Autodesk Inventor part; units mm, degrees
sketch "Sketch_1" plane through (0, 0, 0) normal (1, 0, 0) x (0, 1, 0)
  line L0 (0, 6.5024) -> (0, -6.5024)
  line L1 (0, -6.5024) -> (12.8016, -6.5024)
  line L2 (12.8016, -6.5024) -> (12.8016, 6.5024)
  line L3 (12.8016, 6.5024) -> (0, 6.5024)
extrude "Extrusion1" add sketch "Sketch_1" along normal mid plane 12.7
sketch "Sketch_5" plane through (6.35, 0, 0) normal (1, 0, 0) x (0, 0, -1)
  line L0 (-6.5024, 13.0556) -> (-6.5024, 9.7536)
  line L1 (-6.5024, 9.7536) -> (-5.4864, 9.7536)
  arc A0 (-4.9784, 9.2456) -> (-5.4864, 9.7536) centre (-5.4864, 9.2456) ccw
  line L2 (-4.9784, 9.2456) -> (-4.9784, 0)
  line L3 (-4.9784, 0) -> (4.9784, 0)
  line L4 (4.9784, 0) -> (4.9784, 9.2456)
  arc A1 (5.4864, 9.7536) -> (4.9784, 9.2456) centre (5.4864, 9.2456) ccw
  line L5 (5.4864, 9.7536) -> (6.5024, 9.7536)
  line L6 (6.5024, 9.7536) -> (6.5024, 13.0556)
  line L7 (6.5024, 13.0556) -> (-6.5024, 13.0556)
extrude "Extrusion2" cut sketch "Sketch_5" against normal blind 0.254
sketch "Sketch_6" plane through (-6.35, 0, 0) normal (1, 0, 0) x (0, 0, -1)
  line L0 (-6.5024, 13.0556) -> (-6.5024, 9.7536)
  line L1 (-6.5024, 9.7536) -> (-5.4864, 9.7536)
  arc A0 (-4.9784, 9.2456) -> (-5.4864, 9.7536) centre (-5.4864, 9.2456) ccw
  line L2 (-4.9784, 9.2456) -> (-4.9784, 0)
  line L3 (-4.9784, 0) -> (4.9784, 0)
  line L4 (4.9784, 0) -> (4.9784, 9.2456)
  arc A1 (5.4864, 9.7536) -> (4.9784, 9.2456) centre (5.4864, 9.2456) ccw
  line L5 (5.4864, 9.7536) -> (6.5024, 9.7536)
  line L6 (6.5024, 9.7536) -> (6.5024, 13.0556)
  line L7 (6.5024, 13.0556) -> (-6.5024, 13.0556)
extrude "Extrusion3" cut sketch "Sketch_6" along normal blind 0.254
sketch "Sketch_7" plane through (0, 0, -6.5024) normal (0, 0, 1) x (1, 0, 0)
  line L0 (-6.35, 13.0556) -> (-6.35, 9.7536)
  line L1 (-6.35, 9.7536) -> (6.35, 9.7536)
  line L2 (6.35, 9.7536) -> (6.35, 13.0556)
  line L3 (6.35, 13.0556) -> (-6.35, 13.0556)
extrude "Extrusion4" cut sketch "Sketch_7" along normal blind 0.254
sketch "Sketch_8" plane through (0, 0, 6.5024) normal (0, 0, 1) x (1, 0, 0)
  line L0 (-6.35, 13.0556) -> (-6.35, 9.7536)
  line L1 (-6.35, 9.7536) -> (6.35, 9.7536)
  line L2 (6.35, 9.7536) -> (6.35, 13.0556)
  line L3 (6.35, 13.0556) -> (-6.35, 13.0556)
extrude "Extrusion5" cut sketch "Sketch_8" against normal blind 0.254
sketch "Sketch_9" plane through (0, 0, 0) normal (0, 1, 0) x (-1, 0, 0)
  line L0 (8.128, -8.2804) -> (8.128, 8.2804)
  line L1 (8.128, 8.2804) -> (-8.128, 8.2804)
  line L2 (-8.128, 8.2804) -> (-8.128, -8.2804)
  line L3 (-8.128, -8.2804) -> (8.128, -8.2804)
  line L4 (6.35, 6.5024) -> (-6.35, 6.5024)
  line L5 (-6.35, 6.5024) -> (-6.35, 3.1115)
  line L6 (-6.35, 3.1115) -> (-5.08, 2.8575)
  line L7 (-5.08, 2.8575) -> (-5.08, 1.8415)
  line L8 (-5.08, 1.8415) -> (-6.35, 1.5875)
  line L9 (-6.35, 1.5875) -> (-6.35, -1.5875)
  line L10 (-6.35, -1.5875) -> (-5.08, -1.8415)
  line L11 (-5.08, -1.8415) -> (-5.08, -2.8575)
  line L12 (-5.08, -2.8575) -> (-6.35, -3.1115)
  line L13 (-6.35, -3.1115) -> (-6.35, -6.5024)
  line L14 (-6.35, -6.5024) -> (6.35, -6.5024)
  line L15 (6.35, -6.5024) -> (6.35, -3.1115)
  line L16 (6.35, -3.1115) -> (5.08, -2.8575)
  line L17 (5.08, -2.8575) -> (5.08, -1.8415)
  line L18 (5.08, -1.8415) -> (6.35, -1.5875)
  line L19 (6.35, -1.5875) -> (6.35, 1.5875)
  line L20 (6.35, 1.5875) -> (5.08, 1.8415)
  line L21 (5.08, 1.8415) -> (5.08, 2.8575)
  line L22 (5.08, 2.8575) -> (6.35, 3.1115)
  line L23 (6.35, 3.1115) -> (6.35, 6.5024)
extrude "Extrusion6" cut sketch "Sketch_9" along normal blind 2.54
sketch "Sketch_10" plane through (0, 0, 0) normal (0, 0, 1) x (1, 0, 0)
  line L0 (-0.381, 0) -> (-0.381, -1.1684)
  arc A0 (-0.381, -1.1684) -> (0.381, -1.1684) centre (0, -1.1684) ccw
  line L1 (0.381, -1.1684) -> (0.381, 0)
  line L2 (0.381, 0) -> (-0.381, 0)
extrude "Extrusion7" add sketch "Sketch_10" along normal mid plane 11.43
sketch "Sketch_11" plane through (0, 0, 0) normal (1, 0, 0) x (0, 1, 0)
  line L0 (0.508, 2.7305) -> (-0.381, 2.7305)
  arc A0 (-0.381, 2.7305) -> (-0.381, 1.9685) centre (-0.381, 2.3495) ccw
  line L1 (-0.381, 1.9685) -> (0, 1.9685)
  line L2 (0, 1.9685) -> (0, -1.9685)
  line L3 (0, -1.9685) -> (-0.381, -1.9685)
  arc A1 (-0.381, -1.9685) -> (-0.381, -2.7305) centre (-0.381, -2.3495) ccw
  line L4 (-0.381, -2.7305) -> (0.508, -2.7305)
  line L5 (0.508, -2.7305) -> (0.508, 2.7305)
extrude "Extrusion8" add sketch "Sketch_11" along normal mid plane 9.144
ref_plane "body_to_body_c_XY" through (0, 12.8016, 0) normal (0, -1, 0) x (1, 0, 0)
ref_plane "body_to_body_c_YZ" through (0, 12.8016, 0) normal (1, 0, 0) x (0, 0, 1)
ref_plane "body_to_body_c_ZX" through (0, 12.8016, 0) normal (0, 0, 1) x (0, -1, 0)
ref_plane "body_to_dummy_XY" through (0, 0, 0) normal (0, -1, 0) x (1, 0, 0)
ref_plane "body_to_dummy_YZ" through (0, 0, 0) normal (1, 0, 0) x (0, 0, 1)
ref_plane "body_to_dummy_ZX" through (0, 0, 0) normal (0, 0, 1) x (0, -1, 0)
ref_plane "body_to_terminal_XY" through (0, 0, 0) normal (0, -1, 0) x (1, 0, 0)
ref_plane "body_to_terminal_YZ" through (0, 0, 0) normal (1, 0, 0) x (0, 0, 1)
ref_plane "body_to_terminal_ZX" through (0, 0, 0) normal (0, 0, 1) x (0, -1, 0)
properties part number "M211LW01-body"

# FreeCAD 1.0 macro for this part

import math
import FreeCAD as App
import Part
import Sketcher

V = App.Vector
Q = App.Units.Quantity


def add_polygon(sketch, points):
    """Adds a closed chain of lines whose ends are joined by coincident constraints."""
    first, n = sketch.GeometryCount, len(points)
    for a, b in zip(points, points[1:] + points[:1]):
        sketch.addGeometry(Part.LineSegment(App.Vector(*a, 0), App.Vector(*b, 0)), False)
    for i in range(n):
        sketch.addConstraint(Sketcher.Constraint("Coincident", first + i, 2, first + (i + 1) % n, 1))

doc = App.newDocument("Part")
params = doc.addObject("Spreadsheet::Sheet", "Params")
for row, (alias, value) in enumerate([
    ("sketch1_width", "0.504 in"),
    ("sketch1_height", "0.512 in"),
    ("pad1_length", "0.5 in"),
    ("sketch2_radius", "0.02 in"),
    ("sketch2_width", "0.13 in"),
    ("sketch2_height", "0.04 in"),
    ("sketch2_width2", "0.364 in"),
    ("sketch2_height2", "0.512 in"),
    ("pocket1_length", "0.01 in"),
    ("sketch3_radius", "0.02 in"),
    ("sketch3_width", "0.13 in"),
    ("sketch3_height", "0.04 in"),
    ("sketch3_width2", "0.364 in"),
    ("sketch3_height2", "0.512 in"),
    ("pocket2_length", "0.01 in"),
    ("sketch4_width", "0.5 in"),
    ("sketch4_height", "0.13 in"),
    ("pocket3_length", "0.01 in"),
    ("sketch5_width", "0.5 in"),
    ("sketch5_height", "0.13 in"),
    ("pocket4_length", "0.01 in"),
    ("sketch6_width", "0.5 in"),
    ("sketch6_width2", "0.64 in"),
    ("sketch6_height", "0.04 in"),
    ("sketch6_height2", "0.652 in"),
    ("sketch6_height3", "0.125 in"),
    ("pocket5_length", "0.1 in"),
    ("sketch7_radius", "0.015 in"),
    ("sketch7_height", "0.046 in"),
    ("pad2_length", "0.45 in"),
    ("sketch8_radius", "0.015 in"),
    ("sketch8_width", "0.035 in"),
    ("sketch8_width2", "0.015 in"),
    ("pad3_length", "0.36 in"),
], start=1):
    params.set(f"A{row}", alias)
    params.set(f"B{row}", "=" + value)
    params.setAlias(f"B{row}", alias)

body = doc.addObject("PartDesign::Body", "Body")

sketch1 = doc.addObject("Sketcher::SketchObject", "Sketch")
body.addObject(sketch1)
sketch1.AttachmentSupport = (doc.YZ_Plane, [""])
sketch1.MapMode = "FlatFace"
add_polygon(sketch1, [(13, 7), (0, 7), (0, -7), (13, -7)])
sketch1.addConstraint([
    Sketcher.Constraint("Horizontal", 0),
    Sketcher.Constraint("Vertical", 1),
    Sketcher.Constraint("Horizontal", 2),
    Sketcher.Constraint("Vertical", 3),
    Sketcher.Constraint("Symmetric", 0, 2, 1, 2, -1, 1),
    Sketcher.Constraint("DistanceX", 0, 2, 0, 1, Q("0.504 in")),
    Sketcher.Constraint("DistanceY", 1, 2, 1, 1, Q("0.512 in")),
])
sketch1.setExpression("Constraints[9]", "Params.sketch1_width")
sketch1.setExpression("Constraints[10]", "Params.sketch1_height")
pad1 = doc.addObject("PartDesign::Pad", "Pad")
body.addObject(pad1)
pad1.Profile = sketch1
pad1.setExpression("Length", "Params.pad1_length")
pad1.Midplane = True

sketch2 = doc.addObject("Sketcher::SketchObject", "Sketch001")
body.addObject(sketch2)
sketch2.AttachmentSupport = (doc.YZ_Plane, [""])
sketch2.MapMode = "FlatFace"
sketch2.AttachmentOffset = App.Placement(V(0, 0, 0.25 * 25.4), App.Rotation())
sketch2.addGeometry([
    Part.LineSegment(V(13.1, -6.5, 0), V(13.1, 6.5, 0)),
    Part.LineSegment(V(13.1, 6.5, 0), V(9.8, 6.5, 0)),
    Part.LineSegment(V(9.8, 6.5, 0), V(9.8, 5.5, 0)),
    Part.ArcOfCircle(Part.Circle(V(9.2, 5.5, 0), V(0, 0, 1), 0.5), math.radians(-90), math.radians(0)),
    Part.LineSegment(V(9.2, 5, 0), V(0, 5, 0)),
    Part.LineSegment(V(0, 5, 0), V(0, -5, 0)),
    Part.LineSegment(V(0, -5, 0), V(9.2, -5, 0)),
    Part.ArcOfCircle(Part.Circle(V(9.2, -5.5, 0), V(0, 0, 1), 0.5), math.radians(0), math.radians(90)),
    Part.LineSegment(V(9.8, -5.5, 0), V(9.8, -6.5, 0)),
    Part.LineSegment(V(9.8, -6.5, 0), V(13.1, -6.5, 0)),
], False)
sketch2.addConstraint([
    Sketcher.Constraint("Coincident", 0, 2, 1, 1),
    Sketcher.Constraint("Coincident", 1, 2, 2, 1),
    Sketcher.Constraint("Tangent", 2, 2, 3, 2),
    Sketcher.Constraint("Tangent", 3, 1, 4, 1),
    Sketcher.Constraint("Coincident", 4, 2, 5, 1),
    Sketcher.Constraint("Coincident", 5, 2, 6, 1),
    Sketcher.Constraint("Tangent", 6, 2, 7, 2),
    Sketcher.Constraint("Tangent", 7, 1, 8, 1),
    Sketcher.Constraint("Coincident", 8, 2, 9, 1),
    Sketcher.Constraint("Coincident", 9, 2, 0, 1),
    Sketcher.Constraint("Vertical", 0),
    Sketcher.Constraint("Horizontal", 1),
    Sketcher.Constraint("Vertical", 2),
    Sketcher.Constraint("Horizontal", 4),
    Sketcher.Constraint("Vertical", 5),
    Sketcher.Constraint("Horizontal", 6),
    Sketcher.Constraint("Vertical", 8),
    Sketcher.Constraint("Horizontal", 9),
    Sketcher.Constraint("Equal", 3, 7),
    Sketcher.Constraint("Symmetric", 4, 2, 5, 2, -1, 1),
    Sketcher.Constraint("Symmetric", 1, 2, 8, 2, -1),
    Sketcher.Constraint("Radius", 3, Q("0.02 in")),
    Sketcher.Constraint("DistanceX", 1, 2, 1, 1, Q("0.13 in")),
    Sketcher.Constraint("DistanceY", 2, 2, 2, 1, Q("0.04 in")),
    Sketcher.Constraint("DistanceX", 4, 2, 4, 1, Q("0.364 in")),
    Sketcher.Constraint("DistanceY", 0, 1, 0, 2, Q("0.512 in")),
])
sketch2.setExpression("Constraints[21]", "Params.sketch2_radius")
sketch2.setExpression("Constraints[22]", "Params.sketch2_width")
sketch2.setExpression("Constraints[23]", "Params.sketch2_height")
sketch2.setExpression("Constraints[24]", "Params.sketch2_width2")
sketch2.setExpression("Constraints[25]", "Params.sketch2_height2")
pocket1 = doc.addObject("PartDesign::Pocket", "Pocket")
body.addObject(pocket1)
pocket1.Profile = sketch2
pocket1.setExpression("Length", "Params.pocket1_length")

sketch3 = doc.addObject("Sketcher::SketchObject", "Sketch002")
body.addObject(sketch3)
sketch3.AttachmentSupport = (doc.YZ_Plane, [""])
sketch3.MapMode = "FlatFace"
sketch3.AttachmentOffset = App.Placement(V(0, 0, -0.25 * 25.4), App.Rotation())
sketch3.addGeometry([
    Part.LineSegment(V(13.1, -6.5, 0), V(13.1, 6.5, 0)),
    Part.LineSegment(V(13.1, 6.5, 0), V(9.8, 6.5, 0)),
    Part.LineSegment(V(9.8, 6.5, 0), V(9.8, 5.5, 0)),
    Part.ArcOfCircle(Part.Circle(V(9.2, 5.5, 0), V(0, 0, 1), 0.5), math.radians(-90), math.radians(0)),
    Part.LineSegment(V(9.2, 5, 0), V(0, 5, 0)),
    Part.LineSegment(V(0, 5, 0), V(0, -5, 0)),
    Part.LineSegment(V(0, -5, 0), V(9.2, -5, 0)),
    Part.ArcOfCircle(Part.Circle(V(9.2, -5.5, 0), V(0, 0, 1), 0.5), math.radians(0), math.radians(90)),
    Part.LineSegment(V(9.8, -5.5, 0), V(9.8, -6.5, 0)),
    Part.LineSegment(V(9.8, -6.5, 0), V(13.1, -6.5, 0)),
], False)
sketch3.addConstraint([
    Sketcher.Constraint("Coincident", 0, 2, 1, 1),
    Sketcher.Constraint("Coincident", 1, 2, 2, 1),
    Sketcher.Constraint("Tangent", 2, 2, 3, 2),
    Sketcher.Constraint("Tangent", 3, 1, 4, 1),
    Sketcher.Constraint("Coincident", 4, 2, 5, 1),
    Sketcher.Constraint("Coincident", 5, 2, 6, 1),
    Sketcher.Constraint("Tangent", 6, 2, 7, 2),
    Sketcher.Constraint("Tangent", 7, 1, 8, 1),
    Sketcher.Constraint("Coincident", 8, 2, 9, 1),
    Sketcher.Constraint("Coincident", 9, 2, 0, 1),
    Sketcher.Constraint("Vertical", 0),
    Sketcher.Constraint("Horizontal", 1),
    Sketcher.Constraint("Vertical", 2),
    Sketcher.Constraint("Horizontal", 4),
    Sketcher.Constraint("Vertical", 5),
    Sketcher.Constraint("Horizontal", 6),
    Sketcher.Constraint("Vertical", 8),
    Sketcher.Constraint("Horizontal", 9),
    Sketcher.Constraint("Equal", 3, 7),
    Sketcher.Constraint("Symmetric", 4, 2, 5, 2, -1, 1),
    Sketcher.Constraint("Symmetric", 1, 2, 8, 2, -1),
    Sketcher.Constraint("Radius", 3, Q("0.02 in")),
    Sketcher.Constraint("DistanceX", 1, 2, 1, 1, Q("0.13 in")),
    Sketcher.Constraint("DistanceY", 2, 2, 2, 1, Q("0.04 in")),
    Sketcher.Constraint("DistanceX", 4, 2, 4, 1, Q("0.364 in")),
    Sketcher.Constraint("DistanceY", 0, 1, 0, 2, Q("0.512 in")),
])
sketch3.setExpression("Constraints[21]", "Params.sketch3_radius")
sketch3.setExpression("Constraints[22]", "Params.sketch3_width")
sketch3.setExpression("Constraints[23]", "Params.sketch3_height")
sketch3.setExpression("Constraints[24]", "Params.sketch3_width2")
sketch3.setExpression("Constraints[25]", "Params.sketch3_height2")
pocket2 = doc.addObject("PartDesign::Pocket", "Pocket001")
body.addObject(pocket2)
pocket2.Profile = sketch3
pocket2.setExpression("Length", "Params.pocket2_length")
pocket2.Reversed = True

sketch4 = doc.addObject("Sketcher::SketchObject", "Sketch003")
body.addObject(sketch4)
sketch4.AttachmentSupport = (doc.XY_Plane, [""])
sketch4.MapMode = "FlatFace"
sketch4.AttachmentOffset = App.Placement(V(0, 0, -0.256 * 25.4), App.Rotation())
add_polygon(sketch4, [(6.3, 13.1), (-6.3, 13.1), (-6.3, 9.8), (6.3, 9.8)])
sketch4.addConstraint([
    Sketcher.Constraint("Horizontal", 0),
    Sketcher.Constraint("Vertical", 1),
    Sketcher.Constraint("Horizontal", 2),
    Sketcher.Constraint("Vertical", 3),
    Sketcher.Constraint("DistanceX", 0, 2, 0, 1, Q("0.5 in")),
    Sketcher.Constraint("DistanceY", 1, 2, 1, 1, Q("0.13 in")),
    Sketcher.Constraint("DistanceX", 0, 2, -1, 1, Q("0.25 in")),
    Sketcher.Constraint("DistanceY", -1, 1, 0, 2, Q("0.514 in")),
])
sketch4.setExpression("Constraints[8]", "Params.sketch4_width")
sketch4.setExpression("Constraints[9]", "Params.sketch4_height")
pocket3 = doc.addObject("PartDesign::Pocket", "Pocket002")
body.addObject(pocket3)
pocket3.Profile = sketch4
pocket3.setExpression("Length", "Params.pocket3_length")
pocket3.Reversed = True

sketch5 = doc.addObject("Sketcher::SketchObject", "Sketch004")
body.addObject(sketch5)
sketch5.AttachmentSupport = (doc.XY_Plane, [""])
sketch5.MapMode = "FlatFace"
sketch5.AttachmentOffset = App.Placement(V(0, 0, 0.256 * 25.4), App.Rotation())
add_polygon(sketch5, [(6.3, 13.1), (-6.3, 13.1), (-6.3, 9.8), (6.3, 9.8)])
sketch5.addConstraint([
    Sketcher.Constraint("Horizontal", 0),
    Sketcher.Constraint("Vertical", 1),
    Sketcher.Constraint("Horizontal", 2),
    Sketcher.Constraint("Vertical", 3),
    Sketcher.Constraint("DistanceX", 0, 2, 0, 1, Q("0.5 in")),
    Sketcher.Constraint("DistanceY", 1, 2, 1, 1, Q("0.13 in")),
    Sketcher.Constraint("DistanceX", 0, 2, -1, 1, Q("0.25 in")),
    Sketcher.Constraint("DistanceY", -1, 1, 0, 2, Q("0.514 in")),
])
sketch5.setExpression("Constraints[8]", "Params.sketch5_width")
sketch5.setExpression("Constraints[9]", "Params.sketch5_height")
pocket4 = doc.addObject("PartDesign::Pocket", "Pocket003")
body.addObject(pocket4)
pocket4.Profile = sketch5
pocket4.setExpression("Length", "Params.pocket4_length")

sketch6 = doc.addObject("Sketcher::SketchObject", "Sketch005")
body.addObject(sketch6)
sketch6.AttachmentSupport = (doc.XZ_Plane, [""])
sketch6.MapMode = "FlatFace"
add_polygon(sketch6, [(8.1, -8.3), (-8.1, -8.3), (-8.1, 8.3), (8.1, 8.3)])
add_polygon(sketch6, [(6.3, 6.5), (-6.3, 6.5), (-6.3, 3.1), (-5.1, 2.9), (-5.1, 1.8), (-6.3, 1.6), (-6.3, -1.6), (-5.1, -1.8), (-5.1, -2.9), (-6.3, -3.1), (-6.3, -6.5), (6.3, -6.5), (6.3, -3.1), (5.1, -2.9), (5.1, -1.8), (6.3, -1.6), (6.3, 1.6), (5.1, 1.8), (5.1, 2.9), (6.3, 3.1)])
sketch6.addConstraint([
    Sketcher.Constraint("Horizontal", 0),
    Sketcher.Constraint("Vertical", 1),
    Sketcher.Constraint("Horizontal", 2),
    Sketcher.Constraint("Vertical", 3),
    Sketcher.Constraint("Horizontal", 4),
    Sketcher.Constraint("Vertical", 5),
    Sketcher.Constraint("Vertical", 7),
    Sketcher.Constraint("Vertical", 9),
    Sketcher.Constraint("Vertical", 11),
    Sketcher.Constraint("Vertical", 13),
    Sketcher.Constraint("Horizontal", 14),
    Sketcher.Constraint("Vertical", 15),
    Sketcher.Constraint("Vertical", 17),
    Sketcher.Constraint("Vertical", 19),
    Sketcher.Constraint("Vertical", 21),
    Sketcher.Constraint("Vertical", 23),
    Sketcher.Constraint("Symmetric", 0, 2, 2, 2, -1, 1),
    Sketcher.Constraint("Symmetric", 4, 2, 14, 2, -1, 1),
    Sketcher.Constraint("Symmetric", 6, 2, 16, 2, -1, 1),
    Sketcher.Constraint("Symmetric", 8, 2, 18, 2, -1, 1),
    Sketcher.Constraint("Symmetric", 10, 2, 20, 2, -1, 1),
    Sketcher.Constraint("Symmetric", 12, 2, 22, 2, -1, 1),
    Sketcher.Constraint("Symmetric", 12, 2, 15, 2, -2),
    Sketcher.Constraint("Symmetric", 11, 2, 16, 2, -2),
    Sketcher.Constraint("Parallel", 6, 10),
    Sketcher.Constraint("Parallel", 8, 12),
    Sketcher.Constraint("Parallel", 10, 16),
    Sketcher.Constraint("Parallel", 12, 18),
    Sketcher.Constraint("Parallel", 16, 20),
    Sketcher.Constraint("Parallel", 18, 22),
    Sketcher.Constraint("Horizontal", 10, 2, 17, 2),
    Sketcher.Constraint("Vertical", 5, 2, 8, 2),
    Sketcher.Constraint("DistanceX", 4, 2, 4, 1, Q("0.5 in")),
    Sketcher.Constraint("DistanceX", 0, 2, 0, 1, Q("0.64 in")),
    Sketcher.Constraint("DistanceY", 7, 2, 7, 1, Q("0.04 in")),
    Sketcher.Constraint("DistanceX", 6, 2, -1, 1, Q("0.2 in")),
    Sketcher.Constraint("DistanceY", 1, 1, 1, 2, Q("0.652 in")),
    Sketcher.Constraint("DistanceY", 9, 2, 9, 1, Q("0.125 in")),
    Sketcher.Constraint("Angle", 6, Q("-11.31 deg")),
    Sketcher.Constraint("DistanceY", 4, 2, 1, 2, Q("0.07 in")),
])
sketch6.setExpression("Constraints[56]", "Params.sketch6_width")
sketch6.setExpression("Constraints[57]", "Params.sketch6_width2")
sketch6.setExpression("Constraints[58]", "Params.sketch6_height")
sketch6.setExpression("Constraints[60]", "Params.sketch6_height2")
sketch6.setExpression("Constraints[61]", "Params.sketch6_height3")
pocket5 = doc.addObject("PartDesign::Pocket", "Pocket004")
body.addObject(pocket5)
pocket5.Profile = sketch6
pocket5.setExpression("Length", "Params.pocket5_length")

sketch7 = doc.addObject("Sketcher::SketchObject", "Sketch006")
body.addObject(sketch7)
sketch7.AttachmentSupport = (doc.XY_Plane, [""])
sketch7.MapMode = "FlatFace"
sketch7.addGeometry([
    Part.LineSegment(V(0.38, 0, 0), V(-0.38, 0, 0)),
    Part.LineSegment(V(-0.38, 0, 0), V(-0.38, -1.17, 0)),
    Part.ArcOfCircle(Part.Circle(V(0, -1.17, 0), V(0, 0, 1), 0.38), math.radians(180), math.radians(360)),
    Part.LineSegment(V(0.38, -1.17, 0), V(0.38, 0, 0)),
], False)
sketch7.addConstraint([
    Sketcher.Constraint("Coincident", 0, 2, 1, 1),
    Sketcher.Constraint("Tangent", 1, 2, 2, 1),
    Sketcher.Constraint("Tangent", 2, 2, 3, 1),
    Sketcher.Constraint("Coincident", 3, 2, 0, 1),
    Sketcher.Constraint("Horizontal", 0),
    Sketcher.Constraint("Vertical", 1),
    Sketcher.Constraint("Vertical", 3),
    Sketcher.Constraint("Symmetric", 0, 2, 3, 2, -1, 1),
    Sketcher.Constraint("Radius", 2, Q("0.015 in")),
    Sketcher.Constraint("DistanceY", 1, 2, 1, 1, Q("0.046 in")),
])
sketch7.setExpression("Constraints[8]", "Params.sketch7_radius")
sketch7.setExpression("Constraints[9]", "Params.sketch7_height")
pad2 = doc.addObject("PartDesign::Pad", "Pad001")
body.addObject(pad2)
pad2.Profile = sketch7
pad2.setExpression("Length", "Params.pad2_length")
pad2.Midplane = True

sketch8 = doc.addObject("Sketcher::SketchObject", "Sketch007")
body.addObject(sketch8)
sketch8.AttachmentSupport = (doc.YZ_Plane, [""])
sketch8.MapMode = "FlatFace"
sketch8.addGeometry([
    Part.LineSegment(V(0.51, -2.73, 0), V(0.51, 2.73, 0)),
    Part.LineSegment(V(0.51, 2.73, 0), V(-0.38, 2.73, 0)),
    Part.ArcOfCircle(Part.Circle(V(-0.38, 2.35, 0), V(0, 0, 1), 0.38), math.radians(90), math.radians(270)),
    Part.LineSegment(V(-0.38, 1.97, 0), V(0, 1.97, 0)),
    Part.LineSegment(V(0, 1.97, 0), V(0, -1.97, 0)),
    Part.LineSegment(V(0, -1.97, 0), V(-0.38, -1.97, 0)),
    Part.ArcOfCircle(Part.Circle(V(-0.38, -2.35, 0), V(0, 0, 1), 0.38), math.radians(90), math.radians(270)),
    Part.LineSegment(V(-0.38, -2.73, 0), V(0.51, -2.73, 0)),
], False)
sketch8.addConstraint([
    Sketcher.Constraint("Coincident", 0, 2, 1, 1),
    Sketcher.Constraint("Tangent", 1, 2, 2, 1),
    Sketcher.Constraint("Tangent", 2, 2, 3, 1),
    Sketcher.Constraint("Coincident", 3, 2, 4, 1),
    Sketcher.Constraint("Coincident", 4, 2, 5, 1),
    Sketcher.Constraint("Tangent", 5, 2, 6, 1),
    Sketcher.Constraint("Tangent", 6, 2, 7, 1),
    Sketcher.Constraint("Coincident", 7, 2, 0, 1),
    Sketcher.Constraint("Vertical", 0),
    Sketcher.Constraint("Horizontal", 1),
    Sketcher.Constraint("Horizontal", 3),
    Sketcher.Constraint("Vertical", 4),
    Sketcher.Constraint("Horizontal", 5),
    Sketcher.Constraint("Horizontal", 7),
    Sketcher.Constraint("Equal", 2, 6),
    Sketcher.Constraint("Symmetric", 3, 2, 4, 2, -1, 1),
    Sketcher.Constraint("Vertical", 2, 3, 6, 3),
    Sketcher.Constraint("Radius", 2, Q("0.015 in")),
    Sketcher.Constraint("DistanceY", 6, 3, 0, 2, Q("0.2 in")),
    Sketcher.Constraint("DistanceX", 1, 2, 1, 1, Q("0.035 in")),
    Sketcher.Constraint("DistanceX", 3, 1, 3, 2, Q("0.015 in")),
])
sketch8.setExpression("Constraints[17]", "Params.sketch8_radius")
sketch8.setExpression("Constraints[19]", "Params.sketch8_width")
sketch8.setExpression("Constraints[20]", "Params.sketch8_width2")
pad3 = doc.addObject("PartDesign::Pad", "Pad002")
body.addObject(pad3)
pad3.Profile = sketch8
pad3.setExpression("Length", "Params.pad3_length")
pad3.Midplane = True

doc.recompute()
